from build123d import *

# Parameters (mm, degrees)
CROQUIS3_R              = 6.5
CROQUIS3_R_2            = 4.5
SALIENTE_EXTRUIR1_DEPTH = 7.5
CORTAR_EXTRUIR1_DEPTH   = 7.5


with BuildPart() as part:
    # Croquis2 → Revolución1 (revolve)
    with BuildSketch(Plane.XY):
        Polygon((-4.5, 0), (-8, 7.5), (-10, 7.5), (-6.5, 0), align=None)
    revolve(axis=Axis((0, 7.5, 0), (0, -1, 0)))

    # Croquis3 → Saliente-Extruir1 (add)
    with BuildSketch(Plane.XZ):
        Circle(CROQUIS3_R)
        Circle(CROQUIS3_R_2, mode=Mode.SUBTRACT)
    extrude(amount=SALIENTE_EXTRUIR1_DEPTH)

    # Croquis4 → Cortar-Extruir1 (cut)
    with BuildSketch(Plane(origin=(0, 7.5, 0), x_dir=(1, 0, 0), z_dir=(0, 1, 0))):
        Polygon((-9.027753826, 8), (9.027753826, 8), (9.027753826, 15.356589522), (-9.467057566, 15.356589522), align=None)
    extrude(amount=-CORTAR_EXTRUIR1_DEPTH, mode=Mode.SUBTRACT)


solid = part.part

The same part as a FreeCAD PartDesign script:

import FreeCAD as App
import Part
import Sketcher

V = App.Vector
Q = App.Units.Quantity

doc = App.newDocument("Part")
params = doc.addObject("Spreadsheet::Sheet", "Params")
for row, (alias, value) in enumerate([
    ("sketch1_width", "2 mm"),
    ("revolution_angle", "360 deg"),
    ("sketch2_diameter", "13 mm"),
    ("sketch2_diameter2", "9 mm"),
    ("pad1_length", "7.5 mm"),
    ("pocket1_length", "7.5 mm"),
], start=1):
    params.set(f"A{row}", alias)
    params.set(f"B{row}", "=" + value)
    params.setAlias(f"B{row}", alias)

body = doc.addObject("PartDesign::Body", "Body")

sketch1 = doc.addObject("Sketcher::SketchObject", "Sketch")
body.addObject(sketch1)
sketch1.AttachmentSupport = (doc.XY_Plane, [""])
sketch1.MapMode = "FlatFace"
sketch1.addGeometry([
    Part.LineSegment(V(-4.5, 0, 0), V(-8, 7.5, 0)),
    Part.LineSegment(V(-8, 7.5, 0), V(-10, 7.5, 0)),
    Part.LineSegment(V(-10, 7.5, 0), V(-6.5, 0, 0)),
    Part.LineSegment(V(-6.5, 0, 0), V(-4.5, 0, 0)),
], False)
sketch1.addConstraint([
    Sketcher.Constraint("Coincident", 0, 2, 1, 1),
    Sketcher.Constraint("Coincident", 1, 2, 2, 1),
    Sketcher.Constraint("Coincident", 2, 2, 3, 1),
    Sketcher.Constraint("Coincident", 3, 2, 0, 1),
    Sketcher.Constraint("Horizontal", 1),
    Sketcher.Constraint("Horizontal", 3),
    Sketcher.Constraint("PointOnObject", 2, 2, -1),
    Sketcher.Constraint("Parallel", 0, 2),
    Sketcher.Constraint("DistanceX", 1, 2, 1, 1, Q("2 mm")),
    Sketcher.Constraint("DistanceX", 0, 2, -1, 1, Q("8 mm")),
    Sketcher.Constraint("DistanceY", -1, 1, 0, 2, Q("7.5 mm")),
    Sketcher.Constraint("DistanceX", 2, 2, -1, 1, Q("6.5 mm")),
])
sketch1.setExpression("Constraints[8]", "Params.sketch1_width")
revolution = doc.addObject("PartDesign::Revolution", "Revolution")
body.addObject(revolution)
revolution.Profile = sketch1
revolution.ReferenceAxis = (sketch1, ["V_Axis"])
revolution.setExpression("Angle", "Params.revolution_angle")

sketch2 = doc.addObject("Sketcher::SketchObject", "Sketch001")
body.addObject(sketch2)
sketch2.AttachmentSupport = (doc.XZ_Plane, [""])
sketch2.MapMode = "FlatFace"
sketch2.addGeometry([
    Part.Circle(V(0, 0, 0), V(0, 0, 1), 6.5),
    Part.Circle(V(0, 0, 0), V(0, 0, 1), 4.5),
], False)
sketch2.addConstraint([
    Sketcher.Constraint("Coincident", 0, 3, -1, 1),
    Sketcher.Constraint("Coincident", 1, 3, -1, 1),
    Sketcher.Constraint("Diameter", 0, Q("13 mm")),
    Sketcher.Constraint("Diameter", 1, Q("9 mm")),
])
sketch2.setExpression("Constraints[2]", "Params.sketch2_diameter")
sketch2.setExpression("Constraints[3]", "Params.sketch2_diameter2")
pad1 = doc.addObject("PartDesign::Pad", "Pad")
body.addObject(pad1)
pad1.Profile = sketch2
pad1.setExpression("Length", "Params.pad1_length")

sketch3 = doc.addObject("Sketcher::SketchObject", "Sketch002")
body.addObject(sketch3)
sketch3.AttachmentSupport = (doc.XZ_Plane, [""])
sketch3.MapMode = "FlatFace"
sketch3.AttachmentOffset = App.Placement(V(0, 0, -7.5), App.Rotation())
sketch3.addGeometry([
    Part.LineSegment(V(-9.027754, -8, 0), V(9.027754, -8, 0)),
    Part.LineSegment(V(9.027754, -8, 0), V(9.027754, -15.35659, 0)),
    Part.LineSegment(V(9.027754, -15.35659, 0), V(-9.467058, -15.35659, 0)),
    Part.LineSegment(V(-9.467058, -15.35659, 0), V(-9.027754, -8, 0)),
], False)
sketch3.addConstraint([
    Sketcher.Constraint("Coincident", 0, 2, 1, 1),
    Sketcher.Constraint("Coincident", 1, 2, 2, 1),
    Sketcher.Constraint("Coincident", 2, 2, 3, 1),
    Sketcher.Constraint("Coincident", 3, 2, 0, 1),
    Sketcher.Constraint("Horizontal", 0),
    Sketcher.Constraint("Vertical", 1),
    Sketcher.Constraint("Horizontal", 2),
    Sketcher.Constraint("DistanceY", 0, 2, -1, 1, Q("8 mm")),
    Sketcher.Constraint("DistanceX", 2, 2, 2, 1, Q("18.494811 mm")),
    Sketcher.Constraint("DistanceY", 1, 2, 1, 1, Q("7.35659 mm")),
    Sketcher.Constraint("DistanceX", 0, 1, 0, 2, Q("18.055508 mm")),
    Sketcher.Constraint("DistanceX", -1, 1, 0, 2, Q("9.027754 mm")),
])
pocket1 = doc.addObject("PartDesign::Pocket", "Pocket")
body.addObject(pocket1)
pocket1.Profile = sketch3
pocket1.setExpression("Length", "Params.pocket1_length")
pocket1.Reversed = True

doc.recompute()
